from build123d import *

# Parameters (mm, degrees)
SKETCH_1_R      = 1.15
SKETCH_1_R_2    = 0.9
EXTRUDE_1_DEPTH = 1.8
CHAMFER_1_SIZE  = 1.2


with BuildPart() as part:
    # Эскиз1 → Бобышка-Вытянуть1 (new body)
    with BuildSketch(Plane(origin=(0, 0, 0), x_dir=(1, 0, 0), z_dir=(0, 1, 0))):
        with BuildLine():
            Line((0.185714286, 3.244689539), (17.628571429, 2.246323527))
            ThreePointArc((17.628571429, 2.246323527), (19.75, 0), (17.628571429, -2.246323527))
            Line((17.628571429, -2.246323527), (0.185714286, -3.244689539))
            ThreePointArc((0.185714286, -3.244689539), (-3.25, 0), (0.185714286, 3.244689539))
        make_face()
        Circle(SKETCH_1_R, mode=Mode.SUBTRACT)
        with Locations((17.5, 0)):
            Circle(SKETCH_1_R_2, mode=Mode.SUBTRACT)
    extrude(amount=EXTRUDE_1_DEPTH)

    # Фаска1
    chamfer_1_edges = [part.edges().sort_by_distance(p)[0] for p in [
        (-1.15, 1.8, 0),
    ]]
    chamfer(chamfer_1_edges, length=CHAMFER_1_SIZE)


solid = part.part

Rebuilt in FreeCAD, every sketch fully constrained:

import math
import FreeCAD as App
import Part
import Sketcher

V = App.Vector


def edges_at(feature, points):
    """Names of the edges that pass closest to the given points."""
    edges = feature.Shape.Edges
    near = lambda p: min(range(len(edges)), key=lambda i: edges[i].distToShape(Part.Vertex(*p))[0])
    return sorted({f"Edge{near(p) + 1}" for p in points})

doc = App.newDocument("Part")
params = doc.addObject("Spreadsheet::Sheet", "Params")
for row, (alias, value) in enumerate([
    ("sketch1_diameter", "1.8 mm"),
    ("sketch1_diameter2", "2.3 mm"),
    ("sketch1_radius", "3.25 mm"),
    ("sketch1_radius2", "2.25 mm"),
    ("pad1_length", "1.8 mm"),
    ("chamfer_size", "1.2 mm"),
], start=1):
    params.set(f"A{row}", alias)
    params.set(f"B{row}", "=" + value)
    params.setAlias(f"B{row}", alias)

body = doc.addObject("PartDesign::Body", "Body")

# Sketch on XZ plane
sketch1 = doc.addObject("Sketcher::SketchObject", "Sketch")
body.addObject(sketch1)
sketch1.AttachmentSupport = (doc.XZ_Plane, [""])
sketch1.MapMode = "FlatFace"
sketch1.addGeometry(Part.LineSegment(V(17.6, -2.2, 0), V(0.2, -3.2, 0)), False)
sketch1.addGeometry(Part.ArcOfCircle(Part.Circle(V(0, 0, 0), V(0, 0, 1), 3.2), math.radians(87), math.radians(273)), False)
sketch1.addGeometry(Part.LineSegment(V(0.2, 3.2, 0), V(17.6, 2.2, 0)), False)
sketch1.addGeometry(Part.ArcOfCircle(Part.Circle(V(17.5, 0, 0), V(0, 0, 1), 2.2), math.radians(-87), math.radians(87)), False)
sketch1.addGeometry(Part.Circle(V(17.5, 0, 0), V(0, 0, 1), 0.9), False)
sketch1.addGeometry(Part.Circle(V(0, 0, 0), V(0, 0, 1), 1.1), False)
sketch1.addConstraint(Sketcher.Constraint("Tangent", 0, 2, 1, 2))
sketch1.addConstraint(Sketcher.Constraint("Tangent", 1, 1, 2, 1))
sketch1.addConstraint(Sketcher.Constraint("Tangent", 2, 2, 3, 2))
sketch1.addConstraint(Sketcher.Constraint("Tangent", 3, 1, 0, 1))
sketch1.addConstraint(Sketcher.Constraint("Coincident", 1, 3, -1, 1))
sketch1.addConstraint(Sketcher.Constraint("Coincident", 5, 3, -1, 1))
sketch1.addConstraint(Sketcher.Constraint("Coincident", 4, 3, 3, 3))
sketch1.addConstraint(Sketcher.Constraint("PointOnObject", 3, 3, -1))
sketch1.addConstraint(Sketcher.Constraint("Diameter", 4, 1.8))
sketch1.addConstraint(Sketcher.Constraint("Diameter", 5, 2.3))
sketch1.addConstraint(Sketcher.Constraint("Radius", 1, 3.25))
sketch1.addConstraint(Sketcher.Constraint("Radius", 3, 2.25))
sketch1.addConstraint(Sketcher.Constraint("DistanceX", -1, 1, 3, 3, 17.5))
sketch1.setExpression("Constraints[8]", "Params.sketch1_diameter")
sketch1.setExpression("Constraints[9]", "Params.sketch1_diameter2")
sketch1.setExpression("Constraints[10]", "Params.sketch1_radius")
sketch1.setExpression("Constraints[11]", "Params.sketch1_radius2")
pad1 = doc.addObject("PartDesign::Pad", "Pad")
body.addObject(pad1)
pad1.Profile = sketch1
pad1.setExpression("Length", "Params.pad1_length")
pad1.Reversed = True
doc.recompute()

chamfer = doc.addObject("PartDesign::Chamfer", "Chamfer")
body.addObject(chamfer)
chamfer.Base = (pad1, edges_at(pad1, [(-1.15, 1.8, 0)]))
chamfer.setExpression("Size", "Params.chamfer_size")

doc.recompute()
